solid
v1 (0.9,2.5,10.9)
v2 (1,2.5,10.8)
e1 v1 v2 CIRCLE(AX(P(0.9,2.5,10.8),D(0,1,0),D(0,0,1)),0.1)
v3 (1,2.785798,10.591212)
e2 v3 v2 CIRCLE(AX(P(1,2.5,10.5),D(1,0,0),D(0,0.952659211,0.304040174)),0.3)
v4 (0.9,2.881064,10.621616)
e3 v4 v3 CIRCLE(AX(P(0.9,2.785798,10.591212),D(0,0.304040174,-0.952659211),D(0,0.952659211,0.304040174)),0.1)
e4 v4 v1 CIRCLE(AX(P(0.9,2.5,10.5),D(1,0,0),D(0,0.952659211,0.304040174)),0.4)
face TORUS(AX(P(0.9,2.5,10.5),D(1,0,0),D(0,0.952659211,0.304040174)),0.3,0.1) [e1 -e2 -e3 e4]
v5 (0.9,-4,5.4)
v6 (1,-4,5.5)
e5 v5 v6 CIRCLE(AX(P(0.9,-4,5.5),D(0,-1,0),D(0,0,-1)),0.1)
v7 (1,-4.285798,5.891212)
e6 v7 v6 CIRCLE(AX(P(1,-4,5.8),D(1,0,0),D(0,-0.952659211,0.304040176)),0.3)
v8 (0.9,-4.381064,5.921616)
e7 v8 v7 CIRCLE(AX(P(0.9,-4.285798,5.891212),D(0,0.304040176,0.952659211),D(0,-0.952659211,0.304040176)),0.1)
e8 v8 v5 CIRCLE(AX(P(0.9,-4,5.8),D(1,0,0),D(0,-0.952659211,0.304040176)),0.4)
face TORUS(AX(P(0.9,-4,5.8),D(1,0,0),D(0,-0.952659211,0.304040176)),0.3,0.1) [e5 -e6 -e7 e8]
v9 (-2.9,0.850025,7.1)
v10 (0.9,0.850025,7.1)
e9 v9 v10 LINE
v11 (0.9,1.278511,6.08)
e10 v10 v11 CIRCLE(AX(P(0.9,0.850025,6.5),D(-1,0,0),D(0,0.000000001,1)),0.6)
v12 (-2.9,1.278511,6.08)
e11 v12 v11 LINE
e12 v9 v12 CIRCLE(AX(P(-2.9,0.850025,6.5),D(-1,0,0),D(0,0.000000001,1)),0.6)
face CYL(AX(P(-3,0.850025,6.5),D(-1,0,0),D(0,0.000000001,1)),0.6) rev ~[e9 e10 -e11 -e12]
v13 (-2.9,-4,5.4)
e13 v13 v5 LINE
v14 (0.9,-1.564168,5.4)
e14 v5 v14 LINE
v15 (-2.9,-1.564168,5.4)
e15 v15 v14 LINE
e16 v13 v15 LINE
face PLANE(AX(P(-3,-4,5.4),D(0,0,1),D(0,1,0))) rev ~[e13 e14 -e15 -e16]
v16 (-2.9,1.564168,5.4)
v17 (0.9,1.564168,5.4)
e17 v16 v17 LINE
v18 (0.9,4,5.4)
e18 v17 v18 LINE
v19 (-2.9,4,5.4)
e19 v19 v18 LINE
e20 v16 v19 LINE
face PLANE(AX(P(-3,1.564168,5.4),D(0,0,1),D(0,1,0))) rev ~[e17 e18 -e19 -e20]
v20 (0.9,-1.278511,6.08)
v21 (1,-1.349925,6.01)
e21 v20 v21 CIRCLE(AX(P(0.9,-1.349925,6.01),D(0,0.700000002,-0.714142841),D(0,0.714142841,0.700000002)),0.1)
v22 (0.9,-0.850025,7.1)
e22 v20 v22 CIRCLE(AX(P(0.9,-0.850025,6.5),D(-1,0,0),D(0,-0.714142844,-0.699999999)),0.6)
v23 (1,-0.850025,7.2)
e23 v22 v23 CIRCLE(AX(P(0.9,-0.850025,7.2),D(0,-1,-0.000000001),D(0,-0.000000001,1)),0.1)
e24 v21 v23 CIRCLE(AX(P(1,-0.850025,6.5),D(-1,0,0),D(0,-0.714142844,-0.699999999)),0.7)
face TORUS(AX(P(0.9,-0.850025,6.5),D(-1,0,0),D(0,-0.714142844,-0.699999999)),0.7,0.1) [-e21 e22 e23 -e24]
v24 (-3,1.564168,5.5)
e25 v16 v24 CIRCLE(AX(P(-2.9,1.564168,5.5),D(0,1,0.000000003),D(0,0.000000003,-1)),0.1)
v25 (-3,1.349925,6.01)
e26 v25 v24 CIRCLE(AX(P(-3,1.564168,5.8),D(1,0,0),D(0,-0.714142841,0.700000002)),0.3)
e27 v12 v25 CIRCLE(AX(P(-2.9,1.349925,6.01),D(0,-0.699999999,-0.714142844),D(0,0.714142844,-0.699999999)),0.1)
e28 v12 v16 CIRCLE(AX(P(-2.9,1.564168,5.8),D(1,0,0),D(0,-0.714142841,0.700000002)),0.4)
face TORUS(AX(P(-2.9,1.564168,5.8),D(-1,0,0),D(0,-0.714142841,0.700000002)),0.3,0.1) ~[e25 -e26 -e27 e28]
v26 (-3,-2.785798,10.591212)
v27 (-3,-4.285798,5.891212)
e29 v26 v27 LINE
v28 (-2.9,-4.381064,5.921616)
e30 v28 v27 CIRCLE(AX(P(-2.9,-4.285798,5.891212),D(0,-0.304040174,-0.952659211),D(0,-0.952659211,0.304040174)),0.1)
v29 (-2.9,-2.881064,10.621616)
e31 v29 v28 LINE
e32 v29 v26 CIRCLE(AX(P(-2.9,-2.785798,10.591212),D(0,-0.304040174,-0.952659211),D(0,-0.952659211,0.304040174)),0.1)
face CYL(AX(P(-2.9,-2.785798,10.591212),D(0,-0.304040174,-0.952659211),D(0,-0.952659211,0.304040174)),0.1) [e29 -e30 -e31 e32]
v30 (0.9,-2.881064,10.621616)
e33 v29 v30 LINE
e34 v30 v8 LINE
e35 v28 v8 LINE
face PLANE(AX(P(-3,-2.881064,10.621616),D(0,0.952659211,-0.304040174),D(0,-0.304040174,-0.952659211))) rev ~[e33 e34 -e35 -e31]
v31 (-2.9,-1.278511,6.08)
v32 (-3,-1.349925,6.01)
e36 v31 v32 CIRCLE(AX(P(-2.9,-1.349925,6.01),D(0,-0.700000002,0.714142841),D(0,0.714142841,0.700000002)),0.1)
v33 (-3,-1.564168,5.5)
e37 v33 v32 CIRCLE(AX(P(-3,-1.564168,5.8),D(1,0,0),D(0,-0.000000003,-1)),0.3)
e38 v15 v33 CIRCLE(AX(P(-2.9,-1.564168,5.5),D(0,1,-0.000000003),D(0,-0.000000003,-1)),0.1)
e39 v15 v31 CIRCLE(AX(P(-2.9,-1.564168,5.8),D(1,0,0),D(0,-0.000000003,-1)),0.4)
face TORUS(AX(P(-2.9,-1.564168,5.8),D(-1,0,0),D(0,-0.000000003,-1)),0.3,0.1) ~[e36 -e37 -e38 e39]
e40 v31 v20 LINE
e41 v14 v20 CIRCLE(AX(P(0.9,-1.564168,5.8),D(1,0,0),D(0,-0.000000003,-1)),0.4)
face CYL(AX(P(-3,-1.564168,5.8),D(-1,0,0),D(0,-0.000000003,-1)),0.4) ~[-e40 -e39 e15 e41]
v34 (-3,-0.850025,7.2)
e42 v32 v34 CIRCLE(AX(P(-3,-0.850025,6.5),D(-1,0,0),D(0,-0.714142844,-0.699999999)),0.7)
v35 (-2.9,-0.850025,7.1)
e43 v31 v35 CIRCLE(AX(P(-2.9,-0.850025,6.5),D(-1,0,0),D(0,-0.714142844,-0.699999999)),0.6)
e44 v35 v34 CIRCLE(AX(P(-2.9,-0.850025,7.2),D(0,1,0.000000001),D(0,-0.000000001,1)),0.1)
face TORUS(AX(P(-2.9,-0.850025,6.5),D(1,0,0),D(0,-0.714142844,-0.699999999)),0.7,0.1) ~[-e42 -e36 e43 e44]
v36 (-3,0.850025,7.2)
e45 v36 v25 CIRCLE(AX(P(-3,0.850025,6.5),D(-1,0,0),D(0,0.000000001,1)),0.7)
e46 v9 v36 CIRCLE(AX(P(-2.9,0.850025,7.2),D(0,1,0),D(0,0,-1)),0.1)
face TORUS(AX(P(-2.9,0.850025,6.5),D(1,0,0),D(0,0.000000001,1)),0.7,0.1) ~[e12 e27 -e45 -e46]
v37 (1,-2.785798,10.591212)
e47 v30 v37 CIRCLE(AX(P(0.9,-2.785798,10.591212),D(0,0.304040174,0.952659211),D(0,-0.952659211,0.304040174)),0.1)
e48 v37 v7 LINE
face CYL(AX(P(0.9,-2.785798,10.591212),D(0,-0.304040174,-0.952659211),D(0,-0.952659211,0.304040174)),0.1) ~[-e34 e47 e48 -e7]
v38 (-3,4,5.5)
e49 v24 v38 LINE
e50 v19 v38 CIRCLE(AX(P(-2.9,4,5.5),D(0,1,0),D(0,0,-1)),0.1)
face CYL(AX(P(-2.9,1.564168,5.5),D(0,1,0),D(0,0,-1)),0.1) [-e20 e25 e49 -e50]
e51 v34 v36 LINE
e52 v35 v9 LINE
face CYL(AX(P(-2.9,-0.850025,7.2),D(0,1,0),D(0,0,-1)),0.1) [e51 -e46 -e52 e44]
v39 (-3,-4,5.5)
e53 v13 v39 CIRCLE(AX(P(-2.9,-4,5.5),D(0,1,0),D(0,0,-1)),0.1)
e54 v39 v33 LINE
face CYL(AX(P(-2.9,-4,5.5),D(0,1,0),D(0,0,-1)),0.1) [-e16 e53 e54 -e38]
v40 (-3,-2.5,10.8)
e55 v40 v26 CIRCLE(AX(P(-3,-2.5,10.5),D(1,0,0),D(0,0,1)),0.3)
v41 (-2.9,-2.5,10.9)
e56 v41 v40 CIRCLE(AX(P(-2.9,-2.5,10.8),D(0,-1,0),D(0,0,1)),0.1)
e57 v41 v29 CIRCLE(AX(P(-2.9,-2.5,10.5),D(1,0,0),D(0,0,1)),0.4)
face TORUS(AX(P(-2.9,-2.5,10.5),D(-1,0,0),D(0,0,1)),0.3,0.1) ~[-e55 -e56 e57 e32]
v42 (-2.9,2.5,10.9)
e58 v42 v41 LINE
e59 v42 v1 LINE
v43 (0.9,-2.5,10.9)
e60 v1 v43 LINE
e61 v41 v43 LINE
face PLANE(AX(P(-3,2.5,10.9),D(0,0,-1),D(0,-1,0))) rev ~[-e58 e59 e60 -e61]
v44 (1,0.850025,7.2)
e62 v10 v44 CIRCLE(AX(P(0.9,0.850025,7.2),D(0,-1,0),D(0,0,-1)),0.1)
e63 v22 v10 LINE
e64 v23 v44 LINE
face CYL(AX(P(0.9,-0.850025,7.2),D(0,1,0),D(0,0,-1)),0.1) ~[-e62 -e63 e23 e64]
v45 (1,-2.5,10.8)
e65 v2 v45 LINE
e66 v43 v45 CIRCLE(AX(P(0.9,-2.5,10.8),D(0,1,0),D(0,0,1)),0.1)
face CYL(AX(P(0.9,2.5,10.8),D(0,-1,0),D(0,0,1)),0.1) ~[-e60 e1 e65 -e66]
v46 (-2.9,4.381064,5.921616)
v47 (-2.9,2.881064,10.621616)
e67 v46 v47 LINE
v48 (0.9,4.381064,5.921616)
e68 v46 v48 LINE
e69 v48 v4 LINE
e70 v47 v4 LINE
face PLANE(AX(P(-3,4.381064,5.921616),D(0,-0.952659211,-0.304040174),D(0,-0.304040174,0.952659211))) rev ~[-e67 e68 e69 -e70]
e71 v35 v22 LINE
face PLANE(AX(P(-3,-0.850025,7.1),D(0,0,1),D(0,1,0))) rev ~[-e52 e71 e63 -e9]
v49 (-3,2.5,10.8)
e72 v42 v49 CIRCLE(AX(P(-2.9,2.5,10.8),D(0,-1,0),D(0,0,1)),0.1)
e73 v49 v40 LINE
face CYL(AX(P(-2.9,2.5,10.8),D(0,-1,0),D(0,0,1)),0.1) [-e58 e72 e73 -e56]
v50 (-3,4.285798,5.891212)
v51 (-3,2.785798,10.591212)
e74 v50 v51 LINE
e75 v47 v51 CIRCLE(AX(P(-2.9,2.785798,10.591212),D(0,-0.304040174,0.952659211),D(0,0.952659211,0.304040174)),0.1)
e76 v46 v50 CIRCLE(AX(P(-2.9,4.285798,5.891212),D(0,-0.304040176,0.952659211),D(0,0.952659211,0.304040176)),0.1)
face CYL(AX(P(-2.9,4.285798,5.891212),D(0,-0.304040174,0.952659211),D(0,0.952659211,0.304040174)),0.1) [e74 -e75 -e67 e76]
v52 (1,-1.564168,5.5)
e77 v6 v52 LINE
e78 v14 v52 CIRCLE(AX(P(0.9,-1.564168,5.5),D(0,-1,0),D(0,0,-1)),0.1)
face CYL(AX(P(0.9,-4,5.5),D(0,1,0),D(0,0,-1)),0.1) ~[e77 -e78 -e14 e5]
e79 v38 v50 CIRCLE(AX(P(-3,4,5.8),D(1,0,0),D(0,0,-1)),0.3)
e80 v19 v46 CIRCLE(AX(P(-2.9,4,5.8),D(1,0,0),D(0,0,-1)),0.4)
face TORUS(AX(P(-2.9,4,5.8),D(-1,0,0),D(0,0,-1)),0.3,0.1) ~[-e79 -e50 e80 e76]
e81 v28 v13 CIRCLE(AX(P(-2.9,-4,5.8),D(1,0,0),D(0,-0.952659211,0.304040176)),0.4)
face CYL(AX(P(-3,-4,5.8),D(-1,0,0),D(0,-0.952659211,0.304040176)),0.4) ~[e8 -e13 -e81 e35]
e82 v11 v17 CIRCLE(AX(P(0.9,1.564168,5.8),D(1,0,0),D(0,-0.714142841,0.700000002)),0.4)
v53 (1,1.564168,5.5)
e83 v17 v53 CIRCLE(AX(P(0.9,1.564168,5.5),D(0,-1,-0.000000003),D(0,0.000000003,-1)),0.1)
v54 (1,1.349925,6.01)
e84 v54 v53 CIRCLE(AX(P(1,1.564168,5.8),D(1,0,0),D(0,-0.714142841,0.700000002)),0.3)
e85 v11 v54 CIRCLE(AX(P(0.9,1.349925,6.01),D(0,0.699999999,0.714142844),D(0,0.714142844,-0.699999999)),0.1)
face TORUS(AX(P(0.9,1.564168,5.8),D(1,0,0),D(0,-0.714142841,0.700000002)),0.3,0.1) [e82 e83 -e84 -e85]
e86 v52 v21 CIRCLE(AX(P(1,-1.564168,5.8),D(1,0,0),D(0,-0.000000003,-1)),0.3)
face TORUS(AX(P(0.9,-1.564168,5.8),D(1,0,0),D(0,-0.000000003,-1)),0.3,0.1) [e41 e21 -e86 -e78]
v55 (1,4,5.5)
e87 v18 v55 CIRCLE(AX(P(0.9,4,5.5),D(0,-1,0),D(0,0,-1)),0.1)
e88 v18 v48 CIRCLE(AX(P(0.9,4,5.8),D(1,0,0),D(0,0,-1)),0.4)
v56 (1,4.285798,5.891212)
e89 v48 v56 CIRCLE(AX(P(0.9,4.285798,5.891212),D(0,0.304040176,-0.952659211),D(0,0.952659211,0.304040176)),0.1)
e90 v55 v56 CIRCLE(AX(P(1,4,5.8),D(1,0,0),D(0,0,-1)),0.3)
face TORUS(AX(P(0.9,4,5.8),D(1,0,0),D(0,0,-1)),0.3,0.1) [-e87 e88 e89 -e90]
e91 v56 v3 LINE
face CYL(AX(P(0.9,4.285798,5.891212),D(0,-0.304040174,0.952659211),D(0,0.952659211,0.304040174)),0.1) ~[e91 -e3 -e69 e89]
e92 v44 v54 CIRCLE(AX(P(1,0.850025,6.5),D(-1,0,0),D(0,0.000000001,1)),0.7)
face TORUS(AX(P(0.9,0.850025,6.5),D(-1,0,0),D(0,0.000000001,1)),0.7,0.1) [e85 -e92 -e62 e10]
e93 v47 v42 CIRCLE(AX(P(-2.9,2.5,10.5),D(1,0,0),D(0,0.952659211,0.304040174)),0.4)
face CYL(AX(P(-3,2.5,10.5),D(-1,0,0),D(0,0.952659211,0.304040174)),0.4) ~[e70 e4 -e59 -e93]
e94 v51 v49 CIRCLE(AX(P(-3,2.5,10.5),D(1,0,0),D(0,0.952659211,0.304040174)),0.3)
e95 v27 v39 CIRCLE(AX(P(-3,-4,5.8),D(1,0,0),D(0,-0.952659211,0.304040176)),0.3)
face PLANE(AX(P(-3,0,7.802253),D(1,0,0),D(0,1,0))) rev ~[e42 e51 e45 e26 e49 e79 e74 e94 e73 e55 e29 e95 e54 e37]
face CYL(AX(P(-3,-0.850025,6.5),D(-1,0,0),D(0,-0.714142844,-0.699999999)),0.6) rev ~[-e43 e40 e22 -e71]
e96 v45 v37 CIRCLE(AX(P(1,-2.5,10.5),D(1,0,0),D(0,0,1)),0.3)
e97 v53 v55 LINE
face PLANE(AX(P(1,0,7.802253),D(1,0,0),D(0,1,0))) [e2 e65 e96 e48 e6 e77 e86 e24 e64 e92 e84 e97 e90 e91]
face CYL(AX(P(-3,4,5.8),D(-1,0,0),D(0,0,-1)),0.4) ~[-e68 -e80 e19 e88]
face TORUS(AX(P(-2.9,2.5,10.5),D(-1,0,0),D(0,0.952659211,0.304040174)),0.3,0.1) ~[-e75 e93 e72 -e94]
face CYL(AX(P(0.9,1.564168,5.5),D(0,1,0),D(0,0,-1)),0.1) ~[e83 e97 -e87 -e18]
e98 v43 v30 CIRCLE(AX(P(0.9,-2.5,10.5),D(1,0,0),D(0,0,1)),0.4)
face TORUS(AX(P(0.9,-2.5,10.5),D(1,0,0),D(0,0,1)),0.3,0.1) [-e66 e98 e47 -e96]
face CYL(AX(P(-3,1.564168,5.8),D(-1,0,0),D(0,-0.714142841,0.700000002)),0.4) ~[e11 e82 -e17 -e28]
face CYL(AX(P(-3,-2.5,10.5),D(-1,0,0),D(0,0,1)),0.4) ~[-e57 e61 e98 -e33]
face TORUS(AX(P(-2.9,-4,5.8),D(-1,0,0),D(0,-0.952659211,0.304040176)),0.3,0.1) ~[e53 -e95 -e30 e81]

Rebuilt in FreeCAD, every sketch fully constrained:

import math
import FreeCAD as App
import Part
import Sketcher
from FreeCAD import Vector
Q = App.Units.Quantity


def edges_at(feature, points):
    """Names of the edges that pass closest to the given points."""
    edges = feature.Shape.Edges
    near = lambda p: min(range(len(edges)), key=lambda i: edges[i].distToShape(Part.Vertex(*p))[0])
    return sorted({f"Edge{near(p) + 1}" for p in points})

doc = App.newDocument("Part")
body = doc.addObject("PartDesign::Body", "Body")

# Sketch on YZ plane
sketch1 = body.newObject("Sketcher::SketchObject", "Sketch")
sketch1.AttachmentSupport = (doc.getObject("YZ_Plane"), [""])
sketch1.MapMode = "FlatFace"
sketch1.addGeometry([
    Part.LineSegment(Vector(-4, 5.4, 0), Vector(-1.56, 5.4, 0)),  # 0
    Part.ArcOfCircle(Part.Circle(Vector(-1.56, 5.8, 0), Vector(0, 0, 1), 0.4), math.radians(-90), math.radians(44)),  # 1
    Part.ArcOfCircle(Part.Circle(Vector(-0.85, 6.5, 0), Vector(0, 0, 1), 0.6), math.radians(90), math.radians(224)),  # 2
    Part.LineSegment(Vector(-0.85, 7.1, 0), Vector(0.85, 7.1, 0)),  # 3
    Part.ArcOfCircle(Part.Circle(Vector(0.85, 6.5, 0), Vector(0, 0, 1), 0.6), math.radians(-44), math.radians(90)),  # 4
    Part.ArcOfCircle(Part.Circle(Vector(1.56, 5.8, 0), Vector(0, 0, 1), 0.4), math.radians(136), math.radians(270)),  # 5
    Part.LineSegment(Vector(1.56, 5.4, 0), Vector(4, 5.4, 0)),  # 6
    Part.ArcOfCircle(Part.Circle(Vector(4, 5.8, 0), Vector(0, 0, 1), 0.4), math.radians(-90), math.radians(18)),  # 7
    Part.LineSegment(Vector(4.38, 5.92, 0), Vector(2.88, 10.62, 0)),  # 8
    Part.ArcOfCircle(Part.Circle(Vector(2.5, 10.5, 0), Vector(0, 0, 1), 0.4), math.radians(18), math.radians(90)),  # 9
    Part.LineSegment(Vector(2.5, 10.9, 0), Vector(-2.5, 10.9, 0)),  # 10
    Part.ArcOfCircle(Part.Circle(Vector(-2.5, 10.5, 0), Vector(0, 0, 1), 0.4), math.radians(90), math.radians(162)),  # 11
    Part.LineSegment(Vector(-2.88, 10.62, 0), Vector(-4.38, 5.92, 0)),  # 12
    Part.ArcOfCircle(Part.Circle(Vector(-4, 5.8, 0), Vector(0, 0, 1), 0.4), math.radians(162), math.radians(270)),  # 13
], False)
sketch1.addConstraint([
    Sketcher.Constraint("Tangent", 0, 2, 1, 1),
    Sketcher.Constraint("Tangent", 1, 2, 2, 2),
    Sketcher.Constraint("Tangent", 2, 1, 3, 1),
    Sketcher.Constraint("Tangent", 3, 2, 4, 2),
    Sketcher.Constraint("Tangent", 4, 1, 5, 1),
    Sketcher.Constraint("Tangent", 5, 2, 6, 1),
    Sketcher.Constraint("Tangent", 6, 2, 7, 1),
    Sketcher.Constraint("Tangent", 7, 2, 8, 1),
    Sketcher.Constraint("Tangent", 8, 2, 9, 1),
    Sketcher.Constraint("Tangent", 9, 2, 10, 1),
    Sketcher.Constraint("Tangent", 10, 2, 11, 1),
    Sketcher.Constraint("Tangent", 11, 2, 12, 1),
    Sketcher.Constraint("Tangent", 12, 2, 13, 1),
    Sketcher.Constraint("Tangent", 13, 2, 0, 1),
    Sketcher.Constraint("Horizontal", 0),
    Sketcher.Constraint("Horizontal", 3),
    Sketcher.Constraint("Horizontal", 6),
    Sketcher.Constraint("Horizontal", 10),
    Sketcher.Constraint("Equal", 2, 4),
    Sketcher.Constraint("Equal", 1, 5),
    Sketcher.Constraint("Equal", 5, 7),
    Sketcher.Constraint("Equal", 7, 9),
    Sketcher.Constraint("Equal", 9, 11),
    Sketcher.Constraint("Equal", 11, 13),
    Sketcher.Constraint("Symmetric", 1, 3, 5, 3, -2),
    Sketcher.Constraint("Symmetric", 8, 2, 11, 2, -2),
    Sketcher.Constraint("Radius", 1, Q("0.4 mm")),
    Sketcher.Constraint("Radius", 2, Q("0.6 mm")),
    Sketcher.Constraint("DistanceX", 10, 2, 10, 1, Q("5 mm")),
    Sketcher.Constraint("DistanceX", -1, 1, 7, 3, Q("4 mm")),
    Sketcher.Constraint("DistanceY", 4, 3, 9, 3, Q("4 mm")),
    Sketcher.Constraint("DistanceY", -1, 1, 1, 3, Q("5.8 mm")),
    Sketcher.Constraint("DistanceY", -1, 1, 2, 3, Q("6.5 mm")),
    Sketcher.Constraint("DistanceX", 0, 1, 0, 2, Q("2.435832 mm")),
])
pad1 = body.newObject("PartDesign::Pad", "Pad")
pad1.Profile = sketch1
pad1.Type = "TwoLengths"
pad1.Length = 1
pad1.Length2 = 3
doc.recompute()

fillet = body.newObject("PartDesign::Fillet", "Fillet")
fillet.Base = (pad1, edges_at(pad1, [
    (-3, -1.195, 5.645),
    (-3, -1.403, 6.732),
    (-3, 0, 7.1),
    (-3, 1.403, 6.732),
    (-3, 1.195, 5.645),
    (-3, 2.782, 5.4),
    (-3, 4.323, 5.564),
    (1, -4.323, 5.564),
    (1, -2.782, 5.4),
    (1, -1.195, 5.645),
    (1, -1.403, 6.732),
    (-3, 3.631, 8.272),
    (1, 0, 7.1),
    (1, 1.403, 6.732),
    (1, 1.195, 5.645),
    (1, 2.782, 5.4),
    (1, 4.323, 5.564),
    (1, 3.631, 8.272),
    (1, 2.736, 10.823),
    (1, 0, 10.9),
    (1, -2.736, 10.823),
    (1, -3.631, 8.272),
    (-3, 2.736, 10.823),
    (-3, 0, 10.9),
    (-3, -4.323, 5.564),
    (-3, -2.736, 10.823),
    (-3, -3.631, 8.272),
    (-3, -2.782, 5.4),
]))
fillet.Radius = 0.1

doc.recompute()
